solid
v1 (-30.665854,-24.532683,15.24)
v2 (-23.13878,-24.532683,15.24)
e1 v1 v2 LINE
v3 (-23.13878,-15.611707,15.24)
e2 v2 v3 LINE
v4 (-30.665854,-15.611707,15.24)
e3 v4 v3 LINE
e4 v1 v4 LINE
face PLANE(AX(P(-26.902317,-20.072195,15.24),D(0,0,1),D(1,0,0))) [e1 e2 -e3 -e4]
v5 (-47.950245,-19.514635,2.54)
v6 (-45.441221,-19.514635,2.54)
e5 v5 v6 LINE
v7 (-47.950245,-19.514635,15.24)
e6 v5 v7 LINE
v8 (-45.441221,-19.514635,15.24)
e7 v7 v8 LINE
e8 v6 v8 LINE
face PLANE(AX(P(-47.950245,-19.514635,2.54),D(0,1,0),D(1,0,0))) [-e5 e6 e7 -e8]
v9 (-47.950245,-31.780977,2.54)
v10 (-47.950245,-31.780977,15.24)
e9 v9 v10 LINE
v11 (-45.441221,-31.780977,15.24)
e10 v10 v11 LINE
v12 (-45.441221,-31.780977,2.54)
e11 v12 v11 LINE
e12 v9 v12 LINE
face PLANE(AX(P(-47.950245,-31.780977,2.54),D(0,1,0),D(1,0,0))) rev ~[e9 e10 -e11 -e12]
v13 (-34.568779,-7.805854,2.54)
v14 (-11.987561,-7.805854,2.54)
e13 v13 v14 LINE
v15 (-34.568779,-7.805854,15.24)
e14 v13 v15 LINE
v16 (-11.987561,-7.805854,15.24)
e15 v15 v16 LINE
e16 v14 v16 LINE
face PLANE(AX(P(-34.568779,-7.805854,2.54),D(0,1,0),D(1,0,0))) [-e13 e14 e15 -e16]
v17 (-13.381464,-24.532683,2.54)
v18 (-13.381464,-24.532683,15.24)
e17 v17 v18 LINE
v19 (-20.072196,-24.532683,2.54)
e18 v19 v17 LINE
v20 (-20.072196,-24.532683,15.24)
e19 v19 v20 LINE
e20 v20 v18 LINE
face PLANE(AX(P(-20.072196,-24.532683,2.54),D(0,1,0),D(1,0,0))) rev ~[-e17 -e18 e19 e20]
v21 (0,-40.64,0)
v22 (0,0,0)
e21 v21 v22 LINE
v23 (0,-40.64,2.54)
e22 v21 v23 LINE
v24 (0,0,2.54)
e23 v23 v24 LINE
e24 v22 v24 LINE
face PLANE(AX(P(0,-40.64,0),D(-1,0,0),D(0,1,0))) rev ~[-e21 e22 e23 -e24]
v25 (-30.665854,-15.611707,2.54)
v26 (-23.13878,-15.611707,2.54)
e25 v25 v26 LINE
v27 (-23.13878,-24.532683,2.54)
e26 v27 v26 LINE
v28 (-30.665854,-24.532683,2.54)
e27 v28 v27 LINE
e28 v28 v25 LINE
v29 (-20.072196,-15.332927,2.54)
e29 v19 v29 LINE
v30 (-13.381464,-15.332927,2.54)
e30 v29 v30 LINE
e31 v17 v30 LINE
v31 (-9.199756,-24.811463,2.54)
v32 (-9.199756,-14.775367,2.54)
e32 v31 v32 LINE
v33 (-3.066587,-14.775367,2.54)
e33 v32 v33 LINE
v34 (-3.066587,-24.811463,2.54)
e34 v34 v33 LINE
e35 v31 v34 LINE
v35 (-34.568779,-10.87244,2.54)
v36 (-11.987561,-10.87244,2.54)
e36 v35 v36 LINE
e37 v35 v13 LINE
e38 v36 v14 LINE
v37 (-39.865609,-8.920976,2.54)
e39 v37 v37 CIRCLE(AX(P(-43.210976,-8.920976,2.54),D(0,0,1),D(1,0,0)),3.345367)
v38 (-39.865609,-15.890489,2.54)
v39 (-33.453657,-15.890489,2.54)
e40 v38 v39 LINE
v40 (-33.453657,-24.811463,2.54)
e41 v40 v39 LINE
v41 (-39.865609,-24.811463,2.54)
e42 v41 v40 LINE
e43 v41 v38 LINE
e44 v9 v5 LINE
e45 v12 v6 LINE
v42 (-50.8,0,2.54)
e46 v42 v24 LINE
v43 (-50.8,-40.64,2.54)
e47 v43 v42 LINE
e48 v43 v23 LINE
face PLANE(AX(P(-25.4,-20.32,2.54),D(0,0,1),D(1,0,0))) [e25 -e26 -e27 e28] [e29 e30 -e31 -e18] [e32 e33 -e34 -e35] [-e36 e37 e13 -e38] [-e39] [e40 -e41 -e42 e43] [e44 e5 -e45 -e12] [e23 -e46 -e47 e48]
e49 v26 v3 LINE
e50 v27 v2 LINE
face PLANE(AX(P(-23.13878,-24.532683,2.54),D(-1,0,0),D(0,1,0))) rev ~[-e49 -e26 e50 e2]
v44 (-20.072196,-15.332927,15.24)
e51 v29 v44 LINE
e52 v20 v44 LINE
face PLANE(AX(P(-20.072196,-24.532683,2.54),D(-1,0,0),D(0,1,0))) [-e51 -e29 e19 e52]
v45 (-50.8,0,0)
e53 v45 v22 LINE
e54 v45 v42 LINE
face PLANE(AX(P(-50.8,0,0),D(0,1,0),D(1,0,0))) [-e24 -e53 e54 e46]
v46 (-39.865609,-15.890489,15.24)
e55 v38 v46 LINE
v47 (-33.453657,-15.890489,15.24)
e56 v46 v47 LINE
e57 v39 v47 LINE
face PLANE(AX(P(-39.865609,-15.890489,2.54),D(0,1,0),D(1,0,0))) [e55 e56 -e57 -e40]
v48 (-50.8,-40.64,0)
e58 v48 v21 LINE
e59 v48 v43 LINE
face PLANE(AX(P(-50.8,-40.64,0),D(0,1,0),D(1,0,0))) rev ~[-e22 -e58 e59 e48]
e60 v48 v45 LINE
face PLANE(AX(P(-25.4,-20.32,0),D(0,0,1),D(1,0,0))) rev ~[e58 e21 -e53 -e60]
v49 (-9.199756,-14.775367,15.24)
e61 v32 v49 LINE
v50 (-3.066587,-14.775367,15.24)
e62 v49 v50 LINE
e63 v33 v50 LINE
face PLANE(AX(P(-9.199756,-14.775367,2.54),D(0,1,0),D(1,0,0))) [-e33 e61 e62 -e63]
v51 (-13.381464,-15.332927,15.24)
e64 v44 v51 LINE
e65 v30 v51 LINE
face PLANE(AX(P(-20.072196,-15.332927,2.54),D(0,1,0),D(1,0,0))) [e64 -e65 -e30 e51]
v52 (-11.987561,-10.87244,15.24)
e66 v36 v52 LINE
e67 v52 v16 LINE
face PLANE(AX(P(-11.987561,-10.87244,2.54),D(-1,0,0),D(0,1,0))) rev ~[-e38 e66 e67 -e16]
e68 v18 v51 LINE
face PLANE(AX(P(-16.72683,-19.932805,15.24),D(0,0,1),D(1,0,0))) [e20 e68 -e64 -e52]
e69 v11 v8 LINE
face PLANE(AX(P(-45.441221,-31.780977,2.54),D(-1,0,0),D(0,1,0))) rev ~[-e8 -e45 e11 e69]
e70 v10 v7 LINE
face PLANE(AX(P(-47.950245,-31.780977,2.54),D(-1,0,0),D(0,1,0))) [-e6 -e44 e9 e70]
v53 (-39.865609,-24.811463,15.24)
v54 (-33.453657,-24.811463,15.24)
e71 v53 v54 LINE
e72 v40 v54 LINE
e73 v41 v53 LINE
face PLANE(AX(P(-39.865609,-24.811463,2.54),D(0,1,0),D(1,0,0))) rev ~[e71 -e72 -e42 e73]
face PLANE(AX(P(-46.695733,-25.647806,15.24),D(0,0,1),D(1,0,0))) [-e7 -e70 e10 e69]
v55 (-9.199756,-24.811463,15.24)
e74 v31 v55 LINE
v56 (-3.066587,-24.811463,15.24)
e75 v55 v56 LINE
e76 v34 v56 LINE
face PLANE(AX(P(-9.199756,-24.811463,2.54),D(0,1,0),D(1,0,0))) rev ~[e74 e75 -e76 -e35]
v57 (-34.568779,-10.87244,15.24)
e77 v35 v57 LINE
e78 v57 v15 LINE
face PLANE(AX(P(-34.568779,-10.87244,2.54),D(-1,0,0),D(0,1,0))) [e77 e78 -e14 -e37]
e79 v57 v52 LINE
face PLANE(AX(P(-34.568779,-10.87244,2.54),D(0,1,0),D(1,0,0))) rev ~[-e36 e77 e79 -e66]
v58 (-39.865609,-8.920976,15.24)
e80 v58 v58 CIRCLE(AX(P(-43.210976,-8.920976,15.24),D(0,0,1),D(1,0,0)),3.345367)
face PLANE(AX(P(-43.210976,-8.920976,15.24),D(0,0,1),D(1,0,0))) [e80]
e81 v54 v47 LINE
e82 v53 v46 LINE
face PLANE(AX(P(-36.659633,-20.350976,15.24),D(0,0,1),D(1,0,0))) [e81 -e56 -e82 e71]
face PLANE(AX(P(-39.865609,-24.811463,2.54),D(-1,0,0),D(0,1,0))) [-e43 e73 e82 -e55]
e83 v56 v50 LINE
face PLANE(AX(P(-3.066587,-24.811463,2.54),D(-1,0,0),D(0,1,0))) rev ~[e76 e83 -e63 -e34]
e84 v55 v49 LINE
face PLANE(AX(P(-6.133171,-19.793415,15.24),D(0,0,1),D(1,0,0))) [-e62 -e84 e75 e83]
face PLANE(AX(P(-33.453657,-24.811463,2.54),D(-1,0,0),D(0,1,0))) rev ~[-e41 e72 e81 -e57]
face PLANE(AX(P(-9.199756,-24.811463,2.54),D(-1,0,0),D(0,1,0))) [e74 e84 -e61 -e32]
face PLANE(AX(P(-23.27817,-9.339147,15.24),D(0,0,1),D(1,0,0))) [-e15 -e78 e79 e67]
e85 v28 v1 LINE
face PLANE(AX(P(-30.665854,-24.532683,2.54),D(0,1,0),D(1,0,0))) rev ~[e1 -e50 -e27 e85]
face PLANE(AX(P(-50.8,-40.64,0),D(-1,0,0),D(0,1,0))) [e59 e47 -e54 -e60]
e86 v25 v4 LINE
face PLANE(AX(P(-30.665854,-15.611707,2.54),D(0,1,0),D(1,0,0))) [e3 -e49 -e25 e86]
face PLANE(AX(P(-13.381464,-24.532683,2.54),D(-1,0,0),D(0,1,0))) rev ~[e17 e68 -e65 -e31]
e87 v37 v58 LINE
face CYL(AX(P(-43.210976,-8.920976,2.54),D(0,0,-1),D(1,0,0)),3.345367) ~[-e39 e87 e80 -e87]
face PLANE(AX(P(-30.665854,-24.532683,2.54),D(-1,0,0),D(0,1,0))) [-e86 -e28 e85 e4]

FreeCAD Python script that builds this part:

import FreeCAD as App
import Part
import Sketcher

V = App.Vector
Q = App.Units.Quantity

doc = App.newDocument("Part")
params = doc.addObject("Spreadsheet::Sheet", "Params")
for row, (alias, value) in enumerate([
    ("sketch1_width", "2 in"),
    ("sketch1_height", "1.6 in"),
    ("pad1_length", "0.1 in"),
    ("pad2_length", "0.5 in"),
], start=1):
    params.set(f"A{row}", alias)
    params.set(f"B{row}", "=" + value)
    params.setAlias(f"B{row}", alias)

body = doc.addObject("PartDesign::Body", "Body")

# Sketch on XY plane
sketch1 = body.newObject("Sketcher::SketchObject", "Sketch")
sketch1.AttachmentSupport = (doc.getObject("XY_Plane"), [""])
sketch1.MapMode = "FlatFace"
sketch1.addGeometry(Part.LineSegment(V(-51, 0, 0), V(-51, -41, 0)), False)
sketch1.addGeometry(Part.LineSegment(V(-51, -41, 0), V(0, -41, 0)), False)
sketch1.addGeometry(Part.LineSegment(V(0, -41, 0), V(0, 0, 0)), False)
sketch1.addGeometry(Part.LineSegment(V(0, 0, 0), V(-51, 0, 0)), False)
sketch1.addConstraint(Sketcher.Constraint("Coincident", 0, 2, 1, 1))
sketch1.addConstraint(Sketcher.Constraint("Coincident", 1, 2, 2, 1))
sketch1.addConstraint(Sketcher.Constraint("Coincident", 2, 2, 3, 1))
sketch1.addConstraint(Sketcher.Constraint("Coincident", 3, 2, 0, 1))
sketch1.addConstraint(Sketcher.Constraint("Vertical", 0))
sketch1.addConstraint(Sketcher.Constraint("Horizontal", 1))
sketch1.addConstraint(Sketcher.Constraint("Vertical", 2))
sketch1.addConstraint(Sketcher.Constraint("Horizontal", 3))
sketch1.addConstraint(Sketcher.Constraint("Coincident", 2, 2, -1, 1))
sketch1.addConstraint(Sketcher.Constraint("DistanceX", 1, 1, 1, 2, Q("2 in")))
sketch1.addConstraint(Sketcher.Constraint("DistanceY", 0, 2, 0, 1, Q("1.6 in")))
sketch1.setExpression("Constraints[9]", "Params.sketch1_width")
sketch1.setExpression("Constraints[10]", "Params.sketch1_height")
pad1 = body.newObject("PartDesign::Pad", "Pad")
pad1.Profile = sketch1
pad1.setExpression("Length", "Params.pad1_length")

# Sketch on XY plane
sketch2 = body.newObject("Sketcher::SketchObject", "Sketch001")
sketch2.AttachmentSupport = (doc.getObject("XY_Plane"), [""])
sketch2.MapMode = "FlatFace"
sketch2.AttachmentOffset = App.Placement(V(0, 0, 0.1 * 25.4), App.Rotation())
sketch2.addGeometry(Part.LineSegment(V(-39.9, -15.9, 0), V(-39.9, -24.8, 0)), False)
sketch2.addGeometry(Part.LineSegment(V(-39.9, -24.8, 0), V(-33.5, -24.8, 0)), False)
sketch2.addGeometry(Part.LineSegment(V(-33.5, -24.8, 0), V(-33.5, -15.9, 0)), False)
sketch2.addGeometry(Part.LineSegment(V(-33.5, -15.9, 0), V(-39.9, -15.9, 0)), False)
sketch2.addGeometry(Part.LineSegment(V(-30.7, -15.6, 0), V(-30.7, -24.5, 0)), False)
sketch2.addGeometry(Part.LineSegment(V(-30.7, -24.5, 0), V(-23.1, -24.5, 0)), False)
sketch2.addGeometry(Part.LineSegment(V(-23.1, -24.5, 0), V(-23.1, -15.6, 0)), False)
sketch2.addGeometry(Part.LineSegment(V(-23.1, -15.6, 0), V(-30.7, -15.6, 0)), False)
sketch2.addGeometry(Part.LineSegment(V(-20.1, -15.3, 0), V(-20.1, -24.5, 0)), False)
sketch2.addGeometry(Part.LineSegment(V(-20.1, -24.5, 0), V(-13.4, -24.5, 0)), False)
sketch2.addGeometry(Part.LineSegment(V(-13.4, -24.5, 0), V(-13.4, -15.3, 0)), False)
sketch2.addGeometry(Part.LineSegment(V(-13.4, -15.3, 0), V(-20.1, -15.3, 0)), False)
sketch2.addGeometry(Part.LineSegment(V(-9.2, -14.8, 0), V(-9.2, -24.8, 0)), False)
sketch2.addGeometry(Part.LineSegment(V(-9.2, -24.8, 0), V(-3.1, -24.8, 0)), False)
sketch2.addGeometry(Part.LineSegment(V(-3.1, -24.8, 0), V(-3.1, -14.8, 0)), False)
sketch2.addGeometry(Part.LineSegment(V(-3.1, -14.8, 0), V(-9.2, -14.8, 0)), False)
sketch2.addGeometry(Part.LineSegment(V(-34.6, -7.8, 0), V(-34.6, -10.9, 0)), False)
sketch2.addGeometry(Part.LineSegment(V(-34.6, -10.9, 0), V(-12, -10.9, 0)), False)
sketch2.addGeometry(Part.LineSegment(V(-12, -10.9, 0), V(-12, -7.8, 0)), False)
sketch2.addGeometry(Part.LineSegment(V(-12, -7.8, 0), V(-34.6, -7.8, 0)), False)
sketch2.addGeometry(Part.LineSegment(V(-48, -19.5, 0), V(-48, -31.8, 0)), False)
sketch2.addGeometry(Part.LineSegment(V(-48, -31.8, 0), V(-45.4, -31.8, 0)), False)
sketch2.addGeometry(Part.LineSegment(V(-45.4, -31.8, 0), V(-45.4, -19.5, 0)), False)
sketch2.addGeometry(Part.LineSegment(V(-45.4, -19.5, 0), V(-48, -19.5, 0)), False)
sketch2.addGeometry(Part.Circle(V(-43.2, -8.9, 0), V(0, 0, 1), 3.3), False)
sketch2.addConstraint(Sketcher.Constraint("Coincident", 0, 2, 1, 1))
sketch2.addConstraint(Sketcher.Constraint("Coincident", 1, 2, 2, 1))
sketch2.addConstraint(Sketcher.Constraint("Coincident", 2, 2, 3, 1))
sketch2.addConstraint(Sketcher.Constraint("Coincident", 3, 2, 0, 1))
sketch2.addConstraint(Sketcher.Constraint("Coincident", 4, 2, 5, 1))
sketch2.addConstraint(Sketcher.Constraint("Coincident", 5, 2, 6, 1))
sketch2.addConstraint(Sketcher.Constraint("Coincident", 6, 2, 7, 1))
sketch2.addConstraint(Sketcher.Constraint("Coincident", 7, 2, 4, 1))
sketch2.addConstraint(Sketcher.Constraint("Coincident", 8, 2, 9, 1))
sketch2.addConstraint(Sketcher.Constraint("Coincident", 9, 2, 10, 1))
sketch2.addConstraint(Sketcher.Constraint("Coincident", 10, 2, 11, 1))
sketch2.addConstraint(Sketcher.Constraint("Coincident", 11, 2, 8, 1))
sketch2.addConstraint(Sketcher.Constraint("Coincident", 12, 2, 13, 1))
sketch2.addConstraint(Sketcher.Constraint("Coincident", 13, 2, 14, 1))
sketch2.addConstraint(Sketcher.Constraint("Coincident", 14, 2, 15, 1))
sketch2.addConstraint(Sketcher.Constraint("Coincident", 15, 2, 12, 1))
sketch2.addConstraint(Sketcher.Constraint("Coincident", 16, 2, 17, 1))
sketch2.addConstraint(Sketcher.Constraint("Coincident", 17, 2, 18, 1))
sketch2.addConstraint(Sketcher.Constraint("Coincident", 18, 2, 19, 1))
sketch2.addConstraint(Sketcher.Constraint("Coincident", 19, 2, 16, 1))
sketch2.addConstraint(Sketcher.Constraint("Coincident", 20, 2, 21, 1))
sketch2.addConstraint(Sketcher.Constraint("Coincident", 21, 2, 22, 1))
sketch2.addConstraint(Sketcher.Constraint("Coincident", 22, 2, 23, 1))
sketch2.addConstraint(Sketcher.Constraint("Coincident", 23, 2, 20, 1))
sketch2.addConstraint(Sketcher.Constraint("Vertical", 0))
sketch2.addConstraint(Sketcher.Constraint("Horizontal", 1))
sketch2.addConstraint(Sketcher.Constraint("Vertical", 2))
sketch2.addConstraint(Sketcher.Constraint("Horizontal", 3))
sketch2.addConstraint(Sketcher.Constraint("Vertical", 4))
sketch2.addConstraint(Sketcher.Constraint("Horizontal", 5))
sketch2.addConstraint(Sketcher.Constraint("Vertical", 6))
sketch2.addConstraint(Sketcher.Constraint("Horizontal", 7))
sketch2.addConstraint(Sketcher.Constraint("Vertical", 8))
sketch2.addConstraint(Sketcher.Constraint("Horizontal", 9))
sketch2.addConstraint(Sketcher.Constraint("Vertical", 10))
sketch2.addConstraint(Sketcher.Constraint("Horizontal", 11))
sketch2.addConstraint(Sketcher.Constraint("Vertical", 12))
sketch2.addConstraint(Sketcher.Constraint("Horizontal", 13))
sketch2.addConstraint(Sketcher.Constraint("Vertical", 14))
sketch2.addConstraint(Sketcher.Constraint("Horizontal", 15))
sketch2.addConstraint(Sketcher.Constraint("Vertical", 16))
sketch2.addConstraint(Sketcher.Constraint("Horizontal", 17))
sketch2.addConstraint(Sketcher.Constraint("Vertical", 18))
sketch2.addConstraint(Sketcher.Constraint("Horizontal", 19))
sketch2.addConstraint(Sketcher.Constraint("Vertical", 20))
sketch2.addConstraint(Sketcher.Constraint("Horizontal", 21))
sketch2.addConstraint(Sketcher.Constraint("Vertical", 22))
sketch2.addConstraint(Sketcher.Constraint("Horizontal", 23))
sketch2.addConstraint(Sketcher.Constraint("Horizontal", 5, 2, 8, 2))
sketch2.addConstraint(Sketcher.Constraint("Horizontal", 1, 2, 12, 2))
sketch2.addConstraint(Sketcher.Constraint("Equal", 2, 4))
sketch2.addConstraint(Sketcher.Constraint("DistanceX", 16, 2, 6, 2, Q("0.45 in")))
sketch2.addConstraint(Sketcher.Constraint("Diameter", 24, 6.690734))
sketch2.addConstraint(Sketcher.Constraint("DistanceX", 1, 1, 1, 2, 6.411951))
sketch2.addConstraint(Sketcher.Constraint("DistanceX", 13, 1, 13, 2, 6.133169))
sketch2.addConstraint(Sketcher.Constraint("DistanceX", 17, 1, 17, 2, 22.581218))
sketch2.addConstraint(Sketcher.Constraint("DistanceX", 5, 1, 5, 2, 7.527074))
sketch2.addConstraint(Sketcher.Constraint("DistanceX", 9, 1, 9, 2, 6.690732))
sketch2.addConstraint(Sketcher.Constraint("DistanceX", 21, 1, 21, 2, 2.509024))
sketch2.addConstraint(Sketcher.Constraint("DistanceY", 0, 2, 0, 1, 8.920975))
sketch2.addConstraint(Sketcher.Constraint("DistanceY", 8, 2, 8, 1, 9.199756))
sketch2.addConstraint(Sketcher.Constraint("DistanceY", 12, 2, 12, 1, 10.036097))
sketch2.addConstraint(Sketcher.Constraint("DistanceY", 16, 2, 16, 1, 3.066585))
sketch2.addConstraint(Sketcher.Constraint("DistanceY", 20, 2, 20, 1, 12.266342))
sketch2.addConstraint(Sketcher.Constraint("DistanceX", 0, 2, -1, 1, 39.865609))
sketch2.addConstraint(Sketcher.Constraint("DistanceY", 2, 2, -1, 1, 15.890489))
sketch2.addConstraint(Sketcher.Constraint("DistanceX", 5, 2, -1, 1, 23.13878))
sketch2.addConstraint(Sketcher.Constraint("DistanceY", 16, 2, -1, 1, 10.87244))
sketch2.addConstraint(Sketcher.Constraint("DistanceX", 21, 2, -1, 1, 45.441221))
sketch2.addConstraint(Sketcher.Constraint("DistanceX", 24, 3, 1, 2, 9.757319))
sketch2.addConstraint(Sketcher.Constraint("DistanceY", 1, 2, 4, 2, 0.27878))
sketch2.addConstraint(Sketcher.Constraint("DistanceX", 1, 2, 8, 2, 13.381461))
sketch2.addConstraint(Sketcher.Constraint("DistanceX", 9, 2, 12, 2, 4.181708))
sketch2.addConstraint(Sketcher.Constraint("DistanceY", 24, 3, 19, 2, 1.115121))
sketch2.addConstraint(Sketcher.Constraint("DistanceY", 20, 2, 3, 2, 15.890489))
pad2 = body.newObject("PartDesign::Pad", "Pad001")
pad2.Profile = sketch2
pad2.setExpression("Length", "Params.pad2_length")

doc.recompute()
